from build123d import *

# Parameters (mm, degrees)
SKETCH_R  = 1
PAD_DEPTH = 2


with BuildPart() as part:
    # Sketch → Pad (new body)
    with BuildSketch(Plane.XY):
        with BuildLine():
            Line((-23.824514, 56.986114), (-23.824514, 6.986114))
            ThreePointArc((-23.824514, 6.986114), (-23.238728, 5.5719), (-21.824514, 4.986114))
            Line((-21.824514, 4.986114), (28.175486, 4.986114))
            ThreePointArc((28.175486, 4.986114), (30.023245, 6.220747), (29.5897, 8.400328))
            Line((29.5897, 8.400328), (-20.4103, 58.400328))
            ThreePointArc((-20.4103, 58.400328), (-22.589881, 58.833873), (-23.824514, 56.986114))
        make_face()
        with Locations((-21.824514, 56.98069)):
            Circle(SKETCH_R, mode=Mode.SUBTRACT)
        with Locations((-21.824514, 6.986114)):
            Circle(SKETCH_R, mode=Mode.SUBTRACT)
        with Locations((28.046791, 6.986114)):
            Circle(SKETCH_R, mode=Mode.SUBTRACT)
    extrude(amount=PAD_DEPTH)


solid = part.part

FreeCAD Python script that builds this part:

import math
import FreeCAD as App
import Part
import Sketcher

doc = App.newDocument("Part")
body = doc.addObject("PartDesign::Body", "Body")

sketch1 = body.newObject("Sketcher::SketchObject", "Sketch")
sketch1.AttachmentSupport = (doc.getObject("XY_Plane"), [""])
sketch1.MapMode = "FlatFace"
sketch1.addGeometry(Part.LineSegment(App.Vector(-23.8, 57, 0), App.Vector(-23.8, 7, 0)), False)
sketch1.addGeometry(Part.ArcOfCircle(Part.Circle(App.Vector(-21.8, 7, 0), App.Vector(0, 0, 1), 2), math.radians(180), math.radians(270)), False)
sketch1.addGeometry(Part.LineSegment(App.Vector(-21.8, 5, 0), App.Vector(28.2, 5, 0)), False)
sketch1.addGeometry(Part.ArcOfCircle(Part.Circle(App.Vector(28.2, 7, 0), App.Vector(0, 0, 1), 2), math.radians(-90), math.radians(45)), False)
sketch1.addGeometry(Part.LineSegment(App.Vector(29.6, 8.4, 0), App.Vector(-20.4, 58.4, 0)), False)
sketch1.addGeometry(Part.ArcOfCircle(Part.Circle(App.Vector(-21.8, 57, 0), App.Vector(0, 0, 1), 2), math.radians(45), math.radians(180)), False)
sketch1.addGeometry(Part.Circle(App.Vector(-21.8, 7, 0), App.Vector(0, 0, 1), 1), False)
sketch1.addGeometry(Part.Circle(App.Vector(28, 7, 0), App.Vector(0, 0, 1), 1), False)
sketch1.addGeometry(Part.Circle(App.Vector(-21.8, 57, 0), App.Vector(0, 0, 1), 1), False)
sketch1.addConstraint(Sketcher.Constraint("Tangent", 0, 2, 1, 1))
sketch1.addConstraint(Sketcher.Constraint("Tangent", 1, 2, 2, 1))
sketch1.addConstraint(Sketcher.Constraint("Tangent", 2, 2, 3, 1))
sketch1.addConstraint(Sketcher.Constraint("Tangent", 3, 2, 4, 1))
sketch1.addConstraint(Sketcher.Constraint("Tangent", 4, 2, 5, 1))
sketch1.addConstraint(Sketcher.Constraint("Tangent", 5, 2, 0, 1))
sketch1.addConstraint(Sketcher.Constraint("Vertical", 0))
sketch1.addConstraint(Sketcher.Constraint("Horizontal", 2))
sketch1.addConstraint(Sketcher.Constraint("Coincident", 6, 3, 1, 3))
sketch1.addConstraint(Sketcher.Constraint("Equal", 3, 5))
sketch1.addConstraint(Sketcher.Constraint("Equal", 6, 7))
sketch1.addConstraint(Sketcher.Constraint("Equal", 7, 8))
sketch1.addConstraint(Sketcher.Constraint("Horizontal", 1, 3, 3, 3))
sketch1.addConstraint(Sketcher.Constraint("Horizontal", 6, 3, 7, 3))
sketch1.addConstraint(Sketcher.Constraint("Vertical", 6, 3, 8, 3))
sketch1.addConstraint(Sketcher.Constraint("Equal", 2, 0))
sketch1.addConstraint(Sketcher.Constraint("Diameter", 6, 2.0))
sketch1.addConstraint(Sketcher.Constraint("Radius", 1, 1.999999))
sketch1.addConstraint(Sketcher.Constraint("DistanceX", 2, 1, 2, 2, 50.0))
sketch1.addConstraint(Sketcher.Constraint("DistanceX", -1, 1, 3, 2, 29.5897))
sketch1.addConstraint(Sketcher.Constraint("DistanceX", -1, 1, 7, 3, 28.046791))
sketch1.addConstraint(Sketcher.Constraint("DistanceY", -1, 1, 8, 3, 56.98069))
sketch1.addConstraint(Sketcher.Constraint("DistanceY", -1, 1, 4, 2, 58.400328))
pad1 = body.newObject("PartDesign::Pad", "Pad")
pad1.Profile = sketch1
pad1.Length = 2

doc.recompute()
